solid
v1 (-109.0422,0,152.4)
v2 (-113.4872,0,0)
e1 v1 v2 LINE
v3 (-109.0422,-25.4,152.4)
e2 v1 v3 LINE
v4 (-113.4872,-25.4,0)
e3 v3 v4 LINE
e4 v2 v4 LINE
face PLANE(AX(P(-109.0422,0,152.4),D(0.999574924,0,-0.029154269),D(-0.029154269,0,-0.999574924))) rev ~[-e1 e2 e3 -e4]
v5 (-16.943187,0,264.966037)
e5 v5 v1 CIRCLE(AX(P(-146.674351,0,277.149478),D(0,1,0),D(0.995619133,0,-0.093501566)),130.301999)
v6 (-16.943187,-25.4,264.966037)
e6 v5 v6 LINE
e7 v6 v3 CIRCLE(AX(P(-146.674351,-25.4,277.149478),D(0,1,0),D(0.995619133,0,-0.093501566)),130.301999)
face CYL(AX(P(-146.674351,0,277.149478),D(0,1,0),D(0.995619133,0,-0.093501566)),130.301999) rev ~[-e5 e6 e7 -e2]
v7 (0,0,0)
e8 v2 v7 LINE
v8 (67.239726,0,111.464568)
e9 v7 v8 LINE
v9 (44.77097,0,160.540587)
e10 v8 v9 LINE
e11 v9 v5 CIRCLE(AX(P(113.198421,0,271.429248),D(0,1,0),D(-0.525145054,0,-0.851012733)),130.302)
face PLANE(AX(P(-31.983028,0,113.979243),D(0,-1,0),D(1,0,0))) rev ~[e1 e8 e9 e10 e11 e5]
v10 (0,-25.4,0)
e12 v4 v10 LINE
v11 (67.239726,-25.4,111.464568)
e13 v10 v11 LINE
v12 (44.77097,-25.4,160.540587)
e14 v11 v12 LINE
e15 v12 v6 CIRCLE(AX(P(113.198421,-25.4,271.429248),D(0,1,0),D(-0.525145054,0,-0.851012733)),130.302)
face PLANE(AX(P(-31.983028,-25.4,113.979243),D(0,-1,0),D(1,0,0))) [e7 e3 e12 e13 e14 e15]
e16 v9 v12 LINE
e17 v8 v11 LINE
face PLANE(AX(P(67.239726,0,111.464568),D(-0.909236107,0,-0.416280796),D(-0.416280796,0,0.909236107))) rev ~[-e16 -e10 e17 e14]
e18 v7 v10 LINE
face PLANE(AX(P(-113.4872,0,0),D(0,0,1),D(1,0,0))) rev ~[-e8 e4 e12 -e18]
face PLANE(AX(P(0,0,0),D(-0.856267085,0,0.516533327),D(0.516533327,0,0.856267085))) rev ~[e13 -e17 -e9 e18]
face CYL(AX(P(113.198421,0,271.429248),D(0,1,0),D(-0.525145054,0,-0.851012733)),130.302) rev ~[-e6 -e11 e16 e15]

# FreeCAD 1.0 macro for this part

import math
import FreeCAD as App
import Part
import Sketcher
Q = App.Units.Quantity

doc = App.newDocument("Part")
body = doc.addObject("PartDesign::Body", "Body")

sketch1 = body.newObject("Sketcher::SketchObject", "Sketch")
sketch1.AttachmentSupport = (doc.getObject("XZ_Plane"), [""])
sketch1.MapMode = "FlatFace"
sketch1.addGeometry([
    Part.LineSegment(App.Vector(-113, 0, 0), App.Vector(0, 0, 0)),
    Part.LineSegment(App.Vector(0, 0, 0), App.Vector(67, 111, 0)),
    Part.LineSegment(App.Vector(67, 111, 0), App.Vector(45, 161, 0)),
    Part.ArcOfCircle(Part.Circle(App.Vector(113, 271, 0), App.Vector(0, 0, 1), 130), math.radians(-177), math.radians(-122)),
    Part.ArcOfCircle(Part.Circle(App.Vector(-147, 277, 0), App.Vector(0, 0, 1), 130), math.radians(-73), math.radians(-5)),
    Part.LineSegment(App.Vector(-109, 152, 0), App.Vector(-113, 0, 0)),
], False)
sketch1.addConstraint([
    Sketcher.Constraint("Coincident", 0, 2, 1, 1),
    Sketcher.Constraint("Coincident", 1, 2, 2, 1),
    Sketcher.Constraint("Coincident", 2, 2, 3, 2),
    Sketcher.Constraint("Coincident", 3, 1, 4, 2),
    Sketcher.Constraint("Coincident", 4, 1, 5, 1),
    Sketcher.Constraint("Coincident", 5, 2, 0, 1),
    Sketcher.Constraint("Horizontal", 0),
    Sketcher.Constraint("Coincident", 0, 2, -1, 1),
    Sketcher.Constraint("Equal", 3, 4),
    Sketcher.Constraint("Radius", 3, Q("5.13 in")),
    Sketcher.Constraint("DistanceY", -1, 1, 4, 1, Q("6 in")),
    Sketcher.Constraint("Angle", 1, Q("58.9 deg")),
    Sketcher.Constraint("Angle", 2, Q("114.6 deg")),
    Sketcher.Constraint("DistanceX", 0, 1, 0, 2, Q("4.468 in")),
    Sketcher.Constraint("Distance", 1, Q("5.125 in")),
    Sketcher.Constraint("Distance", 2, Q("2.125 in")),
    Sketcher.Constraint("DistanceX", 4, 1, -1, 1, Q("4.293 in")),
    Sketcher.Constraint("DistanceX", -1, 1, 3, 3, Q("113.198421 mm")),
    Sketcher.Constraint("DistanceX", 4, 3, -1, 1, Q("146.674351 mm")),
])
pad1 = body.newObject("PartDesign::Pad", "Pad")
pad1.Profile = sketch1
pad1.Length = Q("1 in")

doc.recompute()
